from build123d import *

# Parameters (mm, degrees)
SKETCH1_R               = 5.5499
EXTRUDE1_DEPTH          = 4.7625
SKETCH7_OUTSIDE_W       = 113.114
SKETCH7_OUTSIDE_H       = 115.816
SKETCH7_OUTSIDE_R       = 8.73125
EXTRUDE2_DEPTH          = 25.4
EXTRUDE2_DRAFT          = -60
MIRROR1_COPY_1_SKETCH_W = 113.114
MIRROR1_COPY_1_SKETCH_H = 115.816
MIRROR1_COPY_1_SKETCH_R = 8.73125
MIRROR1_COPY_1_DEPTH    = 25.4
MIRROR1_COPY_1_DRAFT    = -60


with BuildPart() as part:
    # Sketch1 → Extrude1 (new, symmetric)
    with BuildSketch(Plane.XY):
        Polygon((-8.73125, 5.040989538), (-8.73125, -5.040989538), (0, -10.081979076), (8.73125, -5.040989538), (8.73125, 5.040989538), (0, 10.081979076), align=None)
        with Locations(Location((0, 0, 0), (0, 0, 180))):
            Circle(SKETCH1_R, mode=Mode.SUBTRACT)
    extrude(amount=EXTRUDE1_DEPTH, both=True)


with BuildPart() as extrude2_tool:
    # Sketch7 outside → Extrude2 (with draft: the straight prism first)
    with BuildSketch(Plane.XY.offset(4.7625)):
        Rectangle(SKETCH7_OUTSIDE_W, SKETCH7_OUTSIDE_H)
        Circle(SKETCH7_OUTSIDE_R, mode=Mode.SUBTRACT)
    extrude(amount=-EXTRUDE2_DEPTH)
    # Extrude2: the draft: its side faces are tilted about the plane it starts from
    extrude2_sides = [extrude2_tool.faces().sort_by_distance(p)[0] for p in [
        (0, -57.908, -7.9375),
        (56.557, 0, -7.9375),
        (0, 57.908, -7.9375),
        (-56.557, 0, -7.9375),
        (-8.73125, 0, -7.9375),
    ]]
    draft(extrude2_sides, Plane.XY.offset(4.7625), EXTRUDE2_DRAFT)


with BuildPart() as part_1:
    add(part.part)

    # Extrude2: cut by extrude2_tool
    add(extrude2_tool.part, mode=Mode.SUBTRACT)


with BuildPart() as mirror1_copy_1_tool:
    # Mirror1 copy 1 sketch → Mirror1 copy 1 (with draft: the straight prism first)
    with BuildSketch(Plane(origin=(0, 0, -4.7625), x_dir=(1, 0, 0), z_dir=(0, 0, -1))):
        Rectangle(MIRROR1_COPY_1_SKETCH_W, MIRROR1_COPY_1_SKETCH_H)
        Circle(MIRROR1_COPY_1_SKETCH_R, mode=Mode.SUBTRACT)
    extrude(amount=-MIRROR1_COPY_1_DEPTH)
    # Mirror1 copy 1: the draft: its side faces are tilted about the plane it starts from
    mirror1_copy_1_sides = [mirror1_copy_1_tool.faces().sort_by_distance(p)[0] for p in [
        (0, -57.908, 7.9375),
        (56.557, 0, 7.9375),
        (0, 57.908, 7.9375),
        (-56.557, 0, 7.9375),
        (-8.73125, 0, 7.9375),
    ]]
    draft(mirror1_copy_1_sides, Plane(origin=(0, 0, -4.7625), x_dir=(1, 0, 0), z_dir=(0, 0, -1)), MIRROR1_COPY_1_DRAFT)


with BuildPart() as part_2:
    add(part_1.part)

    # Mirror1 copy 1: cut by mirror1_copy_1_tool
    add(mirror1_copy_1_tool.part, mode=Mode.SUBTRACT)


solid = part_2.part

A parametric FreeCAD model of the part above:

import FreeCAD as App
import Part
import Sketcher
from FreeCAD import Vector
Q = App.Units.Quantity


def faces_at(feature, points):
    """Names of the faces that lie closest to the given points."""
    faces = feature.Shape.Faces
    near = lambda p: min(range(len(faces)), key=lambda i: faces[i].distToShape(Part.Vertex(*p))[0])
    return sorted({f"Face{near(p) + 1}" for p in points})


def add_polygon(sketch, points):
    """Adds a closed chain of lines whose ends are joined by coincident constraints."""
    first, n = sketch.GeometryCount, len(points)
    for a, b in zip(points, points[1:] + points[:1]):
        sketch.addGeometry(Part.LineSegment(App.Vector(*a, 0), App.Vector(*b, 0)), False)
    for i in range(n):
        sketch.addConstraint(Sketcher.Constraint("Coincident", first + i, 2, first + (i + 1) % n, 1))

doc = App.newDocument("Part")
body = doc.addObject("PartDesign::Body", "Body")

# Sketch on XY plane
sketch1 = body.newObject("Sketcher::SketchObject", "Sketch")
sketch1.AttachmentSupport = (doc.getObject("XY_Plane"), [""])
sketch1.MapMode = "FlatFace"
add_polygon(sketch1, [(-8.73125, 5.04099), (-8.73125, -5.04099), (0, -10.081979), (8.73125, -5.04099), (8.73125, 5.04099), (0, 10.081979)])  # lines 0-5
sketch1.addGeometry(Part.Circle(Vector(0, 0, 0), Vector(0, 0, 1), 5.5499), False)  # 6
sketch1.addConstraint(Sketcher.Constraint("Vertical", 0))
sketch1.addConstraint(Sketcher.Constraint("Vertical", 3))
sketch1.addConstraint(Sketcher.Constraint("Coincident", 6, 3, -1, 1))
sketch1.addConstraint(Sketcher.Constraint("Symmetric", 0, 2, 3, 2, -1, 1))
sketch1.addConstraint(Sketcher.Constraint("Symmetric", 1, 2, 4, 2, -1, 1))
sketch1.addConstraint(Sketcher.Constraint("PointOnObject", 1, 2, -2))
sketch1.addConstraint(Sketcher.Constraint("Parallel", 2, 5))
sketch1.addConstraint(Sketcher.Constraint("Horizontal", 0, 2, 2, 2))
sketch1.addConstraint(Sketcher.Constraint("Diameter", 6, Q("0.437 in")))
sketch1.addConstraint(Sketcher.Constraint("Angle", 1, Q("-30 deg")))
sketch1.addConstraint(Sketcher.Constraint("DistanceX", 0, 2, -1, 1, Q("0.34375 in")))
sketch1.addConstraint(Sketcher.Constraint("DistanceY", 0, 2, 0, 1, 10.081979))
pad1 = body.newObject("PartDesign::Pad", "Pad")
pad1.Profile = sketch1
pad1.Length = Q("0.375 in")
pad1.Midplane = True
body2 = doc.addObject("PartDesign::Body", "Body001")

# Sketch on XY plane
sketch2 = body2.newObject("Sketcher::SketchObject", "Sketch001")
sketch2.AttachmentSupport = (doc.getObject("XY_Plane001"), [""])
sketch2.MapMode = "FlatFace"
sketch2.AttachmentOffset = App.Placement(Vector(0, 0, 0.1875 * 25.4), App.Rotation())
add_polygon(sketch2, [(-56.557, 57.908), (-56.557, -57.908), (56.557, -57.908), (56.557, 57.908)])  # lines 0-3
sketch2.addGeometry(Part.Circle(Vector(0, 0, 0), Vector(0, 0, 1), 8.73125), False)  # 4
sketch2.addConstraint(Sketcher.Constraint("Vertical", 0))
sketch2.addConstraint(Sketcher.Constraint("Horizontal", 1))
sketch2.addConstraint(Sketcher.Constraint("Vertical", 2))
sketch2.addConstraint(Sketcher.Constraint("Horizontal", 3))
sketch2.addConstraint(Sketcher.Constraint("Coincident", 4, 3, -1, 1))
sketch2.addConstraint(Sketcher.Constraint("Symmetric", 0, 2, 2, 2, -1, 1))
sketch2.addConstraint(Sketcher.Constraint("Diameter", 4, Q("0.6875 in")))
sketch2.addConstraint(Sketcher.Constraint("DistanceX", 1, 1, 1, 2, 113.114))
sketch2.addConstraint(Sketcher.Constraint("DistanceY", 0, 2, 0, 1, 115.816))
pad2 = body2.newObject("PartDesign::Pad", "Pad001")
pad2.Profile = sketch2
pad2.Length = Q("1 in")
pad2.Reversed = True
doc.recompute()

datumplane = body2.newObject("PartDesign::Plane", "DatumPlane")
datumplane.AttachmentSupport = (doc.getObject("XY_Plane001"), [""])
datumplane.MapMode = "FlatFace"
datumplane.AttachmentOffset = App.Placement(Vector(0, 0, 0.1875 * 25.4), App.Rotation())
draft = body2.newObject("PartDesign::Draft", "Draft")
draft.Base = (pad2, faces_at(pad2, [
    (0, -57.908, -7.938),
    (56.557, 0, -7.938),
    (0, 57.908, -7.938),
    (-56.557, 0, -7.938),
    (-8.731, 0, -7.938),
]))
draft.NeutralPlane = (datumplane, [""])
draft.Angle = 60
draft.Reversed = True
doc.recompute()

boolean = body.newObject("PartDesign::Boolean", "Boolean")
boolean.Type = "Cut"
boolean.addObjects([body2])
body3 = doc.addObject("PartDesign::Body", "Body002")

# Sketch on XY plane
sketch3 = body3.newObject("Sketcher::SketchObject", "Sketch002")
sketch3.AttachmentSupport = (doc.getObject("XY_Plane002"), [""])
sketch3.MapMode = "FlatFace"
sketch3.AttachmentOffset = App.Placement(Vector(0, 0, -0.1875 * 25.4), App.Rotation())
add_polygon(sketch3, [(-56.557, -57.908), (-56.557, 57.908), (56.557, 57.908), (56.557, -57.908)])  # lines 0-3
sketch3.addGeometry(Part.Circle(Vector(0, 0, 0), Vector(0, 0, 1), 8.73125), False)  # 4
sketch3.addConstraint(Sketcher.Constraint("Vertical", 0))
sketch3.addConstraint(Sketcher.Constraint("Horizontal", 1))
sketch3.addConstraint(Sketcher.Constraint("Vertical", 2))
sketch3.addConstraint(Sketcher.Constraint("Horizontal", 3))
sketch3.addConstraint(Sketcher.Constraint("Coincident", 4, 3, -1, 1))
sketch3.addConstraint(Sketcher.Constraint("Symmetric", 0, 2, 2, 2, -1, 1))
sketch3.addConstraint(Sketcher.Constraint("Diameter", 4, Q("0.6875 in")))
sketch3.addConstraint(Sketcher.Constraint("DistanceX", 1, 1, 1, 2, 113.114))
sketch3.addConstraint(Sketcher.Constraint("DistanceY", 0, 1, 0, 2, 115.816))
pad3 = body3.newObject("PartDesign::Pad", "Pad002")
pad3.Profile = sketch3
pad3.Length = Q("1 in")
doc.recompute()

datumplane2 = body3.newObject("PartDesign::Plane", "DatumPlane001")
datumplane2.AttachmentSupport = (doc.getObject("XY_Plane002"), [""])
datumplane2.MapMode = "FlatFace"
datumplane2.AttachmentOffset = App.Placement(Vector(0, 0, -0.1875 * 25.4), App.Rotation())
draft2 = body3.newObject("PartDesign::Draft", "Draft001")
draft2.Base = (pad3, faces_at(pad3, [
    (0, -57.908, 7.938),
    (56.557, 0, 7.938),
    (0, 57.908, 7.938),
    (-56.557, 0, 7.938),
    (-8.731, 0, 7.938),
]))
draft2.NeutralPlane = (datumplane2, [""])
draft2.Angle = 60
draft2.Reversed = False
doc.recompute()

boolean2 = body.newObject("PartDesign::Boolean", "Boolean001")
boolean2.Type = "Cut"
boolean2.addObjects([body3])

doc.recompute()
